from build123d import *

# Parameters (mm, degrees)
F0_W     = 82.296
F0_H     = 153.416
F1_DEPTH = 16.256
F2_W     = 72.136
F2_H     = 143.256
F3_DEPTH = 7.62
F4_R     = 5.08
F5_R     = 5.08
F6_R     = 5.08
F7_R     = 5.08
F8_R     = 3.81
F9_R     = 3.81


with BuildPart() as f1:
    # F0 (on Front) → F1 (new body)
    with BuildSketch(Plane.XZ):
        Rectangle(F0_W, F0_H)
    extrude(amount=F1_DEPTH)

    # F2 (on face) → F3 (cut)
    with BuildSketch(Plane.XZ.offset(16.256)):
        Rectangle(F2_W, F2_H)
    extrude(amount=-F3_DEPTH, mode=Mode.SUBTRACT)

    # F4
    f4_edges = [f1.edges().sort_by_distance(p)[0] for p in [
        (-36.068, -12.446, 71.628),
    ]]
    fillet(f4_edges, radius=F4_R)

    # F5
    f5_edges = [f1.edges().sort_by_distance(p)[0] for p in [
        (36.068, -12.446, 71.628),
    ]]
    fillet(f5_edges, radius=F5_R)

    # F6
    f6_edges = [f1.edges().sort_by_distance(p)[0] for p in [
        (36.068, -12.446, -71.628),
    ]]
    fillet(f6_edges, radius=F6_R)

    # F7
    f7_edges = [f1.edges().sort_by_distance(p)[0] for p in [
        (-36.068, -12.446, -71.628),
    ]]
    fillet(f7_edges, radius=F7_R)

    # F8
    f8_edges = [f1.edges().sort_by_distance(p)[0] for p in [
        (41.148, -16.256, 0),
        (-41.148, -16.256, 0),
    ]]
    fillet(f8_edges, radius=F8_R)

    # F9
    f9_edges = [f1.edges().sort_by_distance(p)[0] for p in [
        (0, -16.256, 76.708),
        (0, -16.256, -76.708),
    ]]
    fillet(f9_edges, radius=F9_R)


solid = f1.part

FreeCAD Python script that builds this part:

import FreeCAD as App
import Part
import Sketcher
from FreeCAD import Vector
Q = App.Units.Quantity


def edges_at(feature, points):
    """Names of the edges that pass closest to the given points."""
    edges = feature.Shape.Edges
    near = lambda p: min(range(len(edges)), key=lambda i: edges[i].distToShape(Part.Vertex(*p))[0])
    return sorted({f"Edge{near(p) + 1}" for p in points})


def add_polygon(sketch, points):
    """Adds a closed chain of lines whose ends are joined by coincident constraints."""
    first, n = sketch.GeometryCount, len(points)
    for a, b in zip(points, points[1:] + points[:1]):
        sketch.addGeometry(Part.LineSegment(App.Vector(*a, 0), App.Vector(*b, 0)), False)
    for i in range(n):
        sketch.addConstraint(Sketcher.Constraint("Coincident", first + i, 2, first + (i + 1) % n, 1))

doc = App.newDocument("Part")
body = doc.addObject("PartDesign::Body", "Body")

sketch1 = body.newObject("Sketcher::SketchObject", "Sketch")
sketch1.AttachmentSupport = (doc.getObject("XZ_Plane"), [""])
sketch1.MapMode = "FlatFace"
add_polygon(sketch1, [(-41, 77), (-41, -77), (41, -77), (41, 77)])
sketch1.addConstraint(Sketcher.Constraint("Vertical", 0))
sketch1.addConstraint(Sketcher.Constraint("Horizontal", 1))
sketch1.addConstraint(Sketcher.Constraint("Vertical", 2))
sketch1.addConstraint(Sketcher.Constraint("Horizontal", 3))
sketch1.addConstraint(Sketcher.Constraint("Symmetric", 0, 2, 2, 2, -1, 1))
sketch1.addConstraint(Sketcher.Constraint("DistanceX", 1, 1, 1, 2, Q("3.24 in")))
sketch1.addConstraint(Sketcher.Constraint("DistanceY", 0, 2, 0, 1, Q("6.04 in")))
pad1 = body.newObject("PartDesign::Pad", "Pad")
pad1.Profile = sketch1
pad1.Length = Q("0.64 in")

sketch2 = body.newObject("Sketcher::SketchObject", "Sketch001")
sketch2.AttachmentSupport = (doc.getObject("XZ_Plane"), [""])
sketch2.MapMode = "FlatFace"
sketch2.AttachmentOffset = App.Placement(Vector(0, 0, 0.64 * 25.4), App.Rotation())
add_polygon(sketch2, [(-36, 72), (-36, -72), (36, -72), (36, 72)])
sketch2.addConstraint(Sketcher.Constraint("Vertical", 0))
sketch2.addConstraint(Sketcher.Constraint("Horizontal", 1))
sketch2.addConstraint(Sketcher.Constraint("Vertical", 2))
sketch2.addConstraint(Sketcher.Constraint("Horizontal", 3))
sketch2.addConstraint(Sketcher.Constraint("Symmetric", 0, 2, 2, 2, -1, 1))
sketch2.addConstraint(Sketcher.Constraint("DistanceX", 1, 1, 1, 2, Q("2.84 in")))
sketch2.addConstraint(Sketcher.Constraint("DistanceY", 0, 2, 0, 1, Q("5.64 in")))
pocket1 = body.newObject("PartDesign::Pocket", "Pocket")
pocket1.Profile = sketch2
pocket1.Length = Q("0.3 in")
doc.recompute()

fillet = body.newObject("PartDesign::Fillet", "Fillet")
fillet.Base = (pocket1, edges_at(pocket1, [(-36.068, -12.446, 71.628)]))
fillet.Radius = Q("0.2 in")
doc.recompute()

fillet2 = body.newObject("PartDesign::Fillet", "Fillet001")
fillet2.Base = (fillet, edges_at(fillet, [(36.068, -12.446, 71.628)]))
fillet2.Radius = Q("0.2 in")
doc.recompute()

fillet3 = body.newObject("PartDesign::Fillet", "Fillet002")
fillet3.Base = (fillet2, edges_at(fillet2, [(36.068, -12.446, -71.628)]))
fillet3.Radius = Q("0.2 in")
doc.recompute()

fillet4 = body.newObject("PartDesign::Fillet", "Fillet003")
fillet4.Base = (fillet3, edges_at(fillet3, [(-36.068, -12.446, -71.628)]))
fillet4.Radius = Q("0.2 in")
doc.recompute()

fillet5 = body.newObject("PartDesign::Fillet", "Fillet004")
fillet5.Base = (fillet4, edges_at(fillet4, [(41.148, -16.256, 0), (-41.148, -16.256, 0)]))
fillet5.Radius = Q("0.15 in")
doc.recompute()

fillet6 = body.newObject("PartDesign::Fillet", "Fillet005")
fillet6.Base = (fillet5, edges_at(fillet5, [(0, -16.256, 76.708), (0, -16.256, -76.708)]))
fillet6.Radius = Q("0.15 in")

doc.recompute()
